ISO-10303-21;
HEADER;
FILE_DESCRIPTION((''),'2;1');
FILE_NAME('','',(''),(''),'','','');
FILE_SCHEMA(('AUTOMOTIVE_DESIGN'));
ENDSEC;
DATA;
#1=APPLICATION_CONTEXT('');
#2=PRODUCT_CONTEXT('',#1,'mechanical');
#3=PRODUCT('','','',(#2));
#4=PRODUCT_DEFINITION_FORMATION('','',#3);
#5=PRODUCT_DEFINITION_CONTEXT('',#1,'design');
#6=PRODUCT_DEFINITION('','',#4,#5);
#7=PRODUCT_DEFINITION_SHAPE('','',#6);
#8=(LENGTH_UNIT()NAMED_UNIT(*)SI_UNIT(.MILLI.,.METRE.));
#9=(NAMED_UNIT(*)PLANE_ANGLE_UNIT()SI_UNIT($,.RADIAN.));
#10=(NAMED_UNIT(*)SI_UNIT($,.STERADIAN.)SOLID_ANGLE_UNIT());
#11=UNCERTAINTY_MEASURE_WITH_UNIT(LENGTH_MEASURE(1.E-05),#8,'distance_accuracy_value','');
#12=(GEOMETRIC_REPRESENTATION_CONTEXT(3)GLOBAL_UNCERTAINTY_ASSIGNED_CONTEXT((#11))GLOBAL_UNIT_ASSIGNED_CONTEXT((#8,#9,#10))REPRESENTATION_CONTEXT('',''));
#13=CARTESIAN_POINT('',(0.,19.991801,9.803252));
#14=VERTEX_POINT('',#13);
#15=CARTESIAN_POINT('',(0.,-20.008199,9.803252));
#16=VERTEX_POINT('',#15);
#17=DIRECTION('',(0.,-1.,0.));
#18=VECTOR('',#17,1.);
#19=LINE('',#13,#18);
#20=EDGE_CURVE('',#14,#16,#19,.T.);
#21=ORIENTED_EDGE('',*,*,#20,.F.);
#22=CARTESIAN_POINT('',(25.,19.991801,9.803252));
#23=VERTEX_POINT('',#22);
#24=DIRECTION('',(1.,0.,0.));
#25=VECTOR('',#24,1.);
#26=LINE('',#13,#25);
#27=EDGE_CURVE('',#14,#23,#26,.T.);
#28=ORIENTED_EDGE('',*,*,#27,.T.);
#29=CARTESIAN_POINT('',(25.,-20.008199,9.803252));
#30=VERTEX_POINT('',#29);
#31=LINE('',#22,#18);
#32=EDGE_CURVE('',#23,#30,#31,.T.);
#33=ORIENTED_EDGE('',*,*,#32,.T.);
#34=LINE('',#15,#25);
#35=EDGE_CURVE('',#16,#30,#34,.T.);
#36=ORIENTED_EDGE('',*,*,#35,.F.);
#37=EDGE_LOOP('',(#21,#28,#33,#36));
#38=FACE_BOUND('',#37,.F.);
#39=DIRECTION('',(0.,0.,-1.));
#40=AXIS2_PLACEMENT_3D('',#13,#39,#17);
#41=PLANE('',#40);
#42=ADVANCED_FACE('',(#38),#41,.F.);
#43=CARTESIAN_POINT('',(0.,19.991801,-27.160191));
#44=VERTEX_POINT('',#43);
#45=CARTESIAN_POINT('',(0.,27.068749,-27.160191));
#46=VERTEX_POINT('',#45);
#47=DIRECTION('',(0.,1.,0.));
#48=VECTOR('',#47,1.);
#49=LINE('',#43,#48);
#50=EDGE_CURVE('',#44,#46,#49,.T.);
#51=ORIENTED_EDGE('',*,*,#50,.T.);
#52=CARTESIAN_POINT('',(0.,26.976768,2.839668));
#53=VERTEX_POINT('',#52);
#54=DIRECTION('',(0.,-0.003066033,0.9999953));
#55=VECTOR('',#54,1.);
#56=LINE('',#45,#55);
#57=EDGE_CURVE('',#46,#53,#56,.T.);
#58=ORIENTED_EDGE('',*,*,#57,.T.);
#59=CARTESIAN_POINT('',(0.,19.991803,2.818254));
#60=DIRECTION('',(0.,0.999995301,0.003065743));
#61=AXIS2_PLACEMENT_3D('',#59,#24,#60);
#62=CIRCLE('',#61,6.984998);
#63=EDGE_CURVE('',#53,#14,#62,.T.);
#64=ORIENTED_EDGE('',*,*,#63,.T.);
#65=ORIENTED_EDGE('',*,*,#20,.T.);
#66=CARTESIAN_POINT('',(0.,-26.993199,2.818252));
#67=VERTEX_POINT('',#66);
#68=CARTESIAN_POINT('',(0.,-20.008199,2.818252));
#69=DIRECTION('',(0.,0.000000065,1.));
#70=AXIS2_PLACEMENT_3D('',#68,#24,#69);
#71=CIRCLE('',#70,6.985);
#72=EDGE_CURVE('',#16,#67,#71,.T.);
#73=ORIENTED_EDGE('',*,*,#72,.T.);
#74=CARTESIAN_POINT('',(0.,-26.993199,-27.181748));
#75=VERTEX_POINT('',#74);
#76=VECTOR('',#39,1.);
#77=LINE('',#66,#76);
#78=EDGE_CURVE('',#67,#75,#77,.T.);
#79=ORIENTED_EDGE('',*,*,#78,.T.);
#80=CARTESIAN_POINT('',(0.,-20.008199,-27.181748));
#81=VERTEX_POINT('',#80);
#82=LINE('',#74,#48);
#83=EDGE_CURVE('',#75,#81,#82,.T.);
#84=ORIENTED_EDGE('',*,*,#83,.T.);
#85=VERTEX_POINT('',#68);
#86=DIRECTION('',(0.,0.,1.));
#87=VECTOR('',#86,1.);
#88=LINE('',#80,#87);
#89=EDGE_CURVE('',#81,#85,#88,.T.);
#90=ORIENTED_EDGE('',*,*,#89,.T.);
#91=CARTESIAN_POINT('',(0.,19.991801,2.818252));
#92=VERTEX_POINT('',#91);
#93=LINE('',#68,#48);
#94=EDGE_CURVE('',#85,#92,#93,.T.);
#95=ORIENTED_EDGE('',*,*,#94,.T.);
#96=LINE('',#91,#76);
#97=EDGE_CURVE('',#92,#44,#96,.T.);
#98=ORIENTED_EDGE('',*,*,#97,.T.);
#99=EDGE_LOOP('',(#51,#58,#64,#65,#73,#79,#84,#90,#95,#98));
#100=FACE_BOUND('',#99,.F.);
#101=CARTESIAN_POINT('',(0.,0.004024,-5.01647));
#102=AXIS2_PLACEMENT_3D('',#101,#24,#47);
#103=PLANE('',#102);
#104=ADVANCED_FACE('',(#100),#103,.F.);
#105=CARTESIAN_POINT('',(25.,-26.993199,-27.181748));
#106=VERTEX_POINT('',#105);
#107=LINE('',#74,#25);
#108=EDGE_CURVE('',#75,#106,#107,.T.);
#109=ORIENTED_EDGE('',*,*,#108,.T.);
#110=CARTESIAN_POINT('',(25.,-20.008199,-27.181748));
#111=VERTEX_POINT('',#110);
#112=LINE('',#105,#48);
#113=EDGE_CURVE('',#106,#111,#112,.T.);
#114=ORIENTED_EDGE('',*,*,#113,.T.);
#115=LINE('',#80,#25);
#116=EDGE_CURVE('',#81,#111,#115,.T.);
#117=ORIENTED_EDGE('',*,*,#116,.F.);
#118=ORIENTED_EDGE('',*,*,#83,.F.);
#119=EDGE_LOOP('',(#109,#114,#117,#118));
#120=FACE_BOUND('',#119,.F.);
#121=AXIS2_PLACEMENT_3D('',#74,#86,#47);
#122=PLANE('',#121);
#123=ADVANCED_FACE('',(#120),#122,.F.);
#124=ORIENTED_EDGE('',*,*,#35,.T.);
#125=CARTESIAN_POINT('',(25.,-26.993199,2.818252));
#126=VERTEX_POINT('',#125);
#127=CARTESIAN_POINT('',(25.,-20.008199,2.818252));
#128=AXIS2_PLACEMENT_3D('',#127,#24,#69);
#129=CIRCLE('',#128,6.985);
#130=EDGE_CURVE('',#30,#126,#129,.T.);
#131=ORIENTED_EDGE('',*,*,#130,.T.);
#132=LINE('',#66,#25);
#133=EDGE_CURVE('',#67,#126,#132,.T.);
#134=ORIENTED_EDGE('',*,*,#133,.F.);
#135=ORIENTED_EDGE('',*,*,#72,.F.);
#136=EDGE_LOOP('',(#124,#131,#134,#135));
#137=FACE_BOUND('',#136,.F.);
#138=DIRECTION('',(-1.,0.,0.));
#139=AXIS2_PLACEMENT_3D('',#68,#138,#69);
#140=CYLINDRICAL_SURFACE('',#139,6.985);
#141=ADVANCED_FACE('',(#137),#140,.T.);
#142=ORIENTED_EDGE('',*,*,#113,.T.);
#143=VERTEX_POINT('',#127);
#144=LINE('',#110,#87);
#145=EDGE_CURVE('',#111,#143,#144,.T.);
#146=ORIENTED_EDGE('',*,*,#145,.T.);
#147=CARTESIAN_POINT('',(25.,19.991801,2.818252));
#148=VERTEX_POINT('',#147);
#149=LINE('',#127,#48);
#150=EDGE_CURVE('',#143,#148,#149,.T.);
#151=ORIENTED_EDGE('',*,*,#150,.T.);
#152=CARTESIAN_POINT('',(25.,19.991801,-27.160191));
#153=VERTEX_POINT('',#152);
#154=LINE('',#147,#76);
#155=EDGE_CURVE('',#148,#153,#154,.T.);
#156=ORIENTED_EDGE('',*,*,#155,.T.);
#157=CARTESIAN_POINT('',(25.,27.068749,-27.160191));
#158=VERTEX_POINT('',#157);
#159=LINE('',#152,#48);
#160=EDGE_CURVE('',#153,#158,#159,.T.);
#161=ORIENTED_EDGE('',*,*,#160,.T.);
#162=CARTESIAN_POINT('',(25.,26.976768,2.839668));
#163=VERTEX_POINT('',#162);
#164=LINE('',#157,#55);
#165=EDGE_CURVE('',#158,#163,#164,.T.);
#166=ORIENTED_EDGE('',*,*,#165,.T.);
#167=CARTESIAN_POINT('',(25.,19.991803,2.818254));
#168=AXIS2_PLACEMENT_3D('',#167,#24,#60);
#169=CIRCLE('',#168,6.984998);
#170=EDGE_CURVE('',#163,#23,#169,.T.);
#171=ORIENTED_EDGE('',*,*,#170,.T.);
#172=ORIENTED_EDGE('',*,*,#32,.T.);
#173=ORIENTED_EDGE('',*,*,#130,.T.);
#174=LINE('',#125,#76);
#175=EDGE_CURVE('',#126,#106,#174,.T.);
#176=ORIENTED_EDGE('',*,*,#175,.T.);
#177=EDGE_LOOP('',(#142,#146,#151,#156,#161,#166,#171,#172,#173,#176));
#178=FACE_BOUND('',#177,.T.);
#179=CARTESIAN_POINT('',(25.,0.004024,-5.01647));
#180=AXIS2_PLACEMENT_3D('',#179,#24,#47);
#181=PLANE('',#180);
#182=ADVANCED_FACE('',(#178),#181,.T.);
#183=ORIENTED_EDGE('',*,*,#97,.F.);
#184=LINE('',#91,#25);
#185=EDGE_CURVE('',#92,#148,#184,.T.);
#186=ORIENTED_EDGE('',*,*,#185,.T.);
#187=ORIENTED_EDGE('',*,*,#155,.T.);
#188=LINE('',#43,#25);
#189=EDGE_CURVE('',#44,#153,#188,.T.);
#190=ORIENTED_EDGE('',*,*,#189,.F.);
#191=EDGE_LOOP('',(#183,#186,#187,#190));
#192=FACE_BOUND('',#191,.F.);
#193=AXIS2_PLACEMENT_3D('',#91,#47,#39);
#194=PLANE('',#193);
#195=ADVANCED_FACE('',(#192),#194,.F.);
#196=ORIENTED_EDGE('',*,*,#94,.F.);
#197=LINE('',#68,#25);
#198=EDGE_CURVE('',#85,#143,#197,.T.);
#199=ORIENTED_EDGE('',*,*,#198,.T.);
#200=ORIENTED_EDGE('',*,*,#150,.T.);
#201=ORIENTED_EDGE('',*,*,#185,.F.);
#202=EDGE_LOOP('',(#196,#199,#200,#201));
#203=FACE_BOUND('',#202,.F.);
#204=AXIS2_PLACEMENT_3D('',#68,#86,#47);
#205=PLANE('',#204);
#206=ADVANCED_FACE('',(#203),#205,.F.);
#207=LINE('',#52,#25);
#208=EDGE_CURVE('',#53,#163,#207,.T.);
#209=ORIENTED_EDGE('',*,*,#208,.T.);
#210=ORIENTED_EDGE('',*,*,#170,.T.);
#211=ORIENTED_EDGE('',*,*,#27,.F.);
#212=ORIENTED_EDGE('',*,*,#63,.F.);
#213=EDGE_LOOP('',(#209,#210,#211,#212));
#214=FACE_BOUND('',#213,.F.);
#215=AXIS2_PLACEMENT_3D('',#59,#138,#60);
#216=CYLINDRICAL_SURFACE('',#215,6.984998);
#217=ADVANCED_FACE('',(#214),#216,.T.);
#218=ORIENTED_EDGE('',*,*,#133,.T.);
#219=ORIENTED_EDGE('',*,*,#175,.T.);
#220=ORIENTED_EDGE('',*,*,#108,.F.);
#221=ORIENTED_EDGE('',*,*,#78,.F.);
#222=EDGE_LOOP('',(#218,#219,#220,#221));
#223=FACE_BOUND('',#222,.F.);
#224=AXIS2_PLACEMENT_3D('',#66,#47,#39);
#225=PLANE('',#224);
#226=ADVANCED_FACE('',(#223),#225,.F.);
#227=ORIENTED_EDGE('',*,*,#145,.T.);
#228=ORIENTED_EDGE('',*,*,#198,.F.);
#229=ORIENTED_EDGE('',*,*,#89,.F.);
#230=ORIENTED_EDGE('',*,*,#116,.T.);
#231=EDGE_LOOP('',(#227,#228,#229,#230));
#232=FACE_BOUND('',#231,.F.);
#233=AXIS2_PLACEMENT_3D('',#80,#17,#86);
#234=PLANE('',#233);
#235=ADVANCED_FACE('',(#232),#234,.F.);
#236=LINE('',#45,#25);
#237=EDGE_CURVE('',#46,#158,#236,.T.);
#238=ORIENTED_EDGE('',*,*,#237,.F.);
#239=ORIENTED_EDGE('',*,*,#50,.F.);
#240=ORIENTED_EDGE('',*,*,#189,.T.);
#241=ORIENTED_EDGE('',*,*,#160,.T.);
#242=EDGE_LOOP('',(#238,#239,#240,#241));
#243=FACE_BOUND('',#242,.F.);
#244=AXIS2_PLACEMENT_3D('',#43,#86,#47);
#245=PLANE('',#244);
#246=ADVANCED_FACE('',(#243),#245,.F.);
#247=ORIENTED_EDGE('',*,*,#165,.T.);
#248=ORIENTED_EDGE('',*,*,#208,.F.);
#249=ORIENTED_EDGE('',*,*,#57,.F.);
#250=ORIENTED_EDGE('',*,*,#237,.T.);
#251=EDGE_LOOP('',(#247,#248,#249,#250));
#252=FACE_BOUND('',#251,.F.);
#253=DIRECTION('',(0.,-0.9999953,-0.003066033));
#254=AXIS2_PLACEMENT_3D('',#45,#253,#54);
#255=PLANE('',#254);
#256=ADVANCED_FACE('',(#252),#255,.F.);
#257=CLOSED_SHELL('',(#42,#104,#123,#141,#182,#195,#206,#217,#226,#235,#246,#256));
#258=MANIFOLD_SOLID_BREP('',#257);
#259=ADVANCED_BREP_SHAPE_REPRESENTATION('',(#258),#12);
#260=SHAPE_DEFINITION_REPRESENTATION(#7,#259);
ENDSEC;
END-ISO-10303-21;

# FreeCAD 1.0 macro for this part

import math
import FreeCAD as App
import Part
import Sketcher
Q = App.Units.Quantity

doc = App.newDocument("Part")
body = doc.addObject("PartDesign::Body", "Body")

# Sketch on YZ plane
sketch1 = body.newObject("Sketcher::SketchObject", "Sketch")
sketch1.AttachmentSupport = (doc.getObject("YZ_Plane"), [""])
sketch1.MapMode = "FlatFace"
sketch1.addGeometry(Part.ArcOfCircle(Part.Circle(App.Vector(-20, 3, 0), App.Vector(0, 0, 1), 7), math.radians(90), math.radians(180)), False)
sketch1.addGeometry(Part.LineSegment(App.Vector(-27, 3, 0), App.Vector(-27, -27, 0)), False)
sketch1.addGeometry(Part.LineSegment(App.Vector(-27, -27, 0), App.Vector(-20, -27, 0)), False)
sketch1.addGeometry(Part.LineSegment(App.Vector(-20, -27, 0), App.Vector(-20, 3, 0)), False)
sketch1.addGeometry(Part.LineSegment(App.Vector(-20, 3, 0), App.Vector(20, 3, 0)), False)
sketch1.addGeometry(Part.LineSegment(App.Vector(20, 3, 0), App.Vector(20, -27, 0)), False)
sketch1.addGeometry(Part.LineSegment(App.Vector(20, -27, 0), App.Vector(27, -27, 0)), False)
sketch1.addGeometry(Part.LineSegment(App.Vector(27, -27, 0), App.Vector(27, 3, 0)), False)
sketch1.addGeometry(Part.ArcOfCircle(Part.Circle(App.Vector(20, 3, 0), App.Vector(0, 0, 1), 7), math.radians(0), math.radians(90)), False)
sketch1.addGeometry(Part.LineSegment(App.Vector(20, 10, 0), App.Vector(-20, 10, 0)), False)
sketch1.addConstraint(Sketcher.Constraint("Tangent", 0, 2, 1, 1))
sketch1.addConstraint(Sketcher.Constraint("Coincident", 1, 2, 2, 1))
sketch1.addConstraint(Sketcher.Constraint("Coincident", 2, 2, 3, 1))
sketch1.addConstraint(Sketcher.Constraint("Coincident", 3, 2, 4, 1))
sketch1.addConstraint(Sketcher.Constraint("Coincident", 4, 2, 5, 1))
sketch1.addConstraint(Sketcher.Constraint("Coincident", 5, 2, 6, 1))
sketch1.addConstraint(Sketcher.Constraint("Coincident", 6, 2, 7, 1))
sketch1.addConstraint(Sketcher.Constraint("Tangent", 7, 2, 8, 1))
sketch1.addConstraint(Sketcher.Constraint("Tangent", 8, 2, 9, 1))
sketch1.addConstraint(Sketcher.Constraint("Tangent", 9, 2, 0, 1))
sketch1.addConstraint(Sketcher.Constraint("Vertical", 1))
sketch1.addConstraint(Sketcher.Constraint("Horizontal", 2))
sketch1.addConstraint(Sketcher.Constraint("Vertical", 3))
sketch1.addConstraint(Sketcher.Constraint("Horizontal", 4))
sketch1.addConstraint(Sketcher.Constraint("Vertical", 5))
sketch1.addConstraint(Sketcher.Constraint("Horizontal", 6))
sketch1.addConstraint(Sketcher.Constraint("Horizontal", 9))
sketch1.addConstraint(Sketcher.Constraint("Coincident", 3, 2, 0, 3))
sketch1.addConstraint(Sketcher.Constraint("Coincident", 4, 2, 8, 3))
sketch1.addConstraint(Sketcher.Constraint("DistanceX", 4, 1, 4, 2, Q("40 mm")))
sketch1.addConstraint(Sketcher.Constraint("DistanceY", 1, 2, 1, 1, Q("30 mm")))
sketch1.addConstraint(Sketcher.Constraint("Distance", 7, Q("30 mm")))
sketch1.addConstraint(Sketcher.Constraint("Radius", 0, Q("6.985 mm")))
sketch1.addConstraint(Sketcher.Constraint("DistanceX", 6, 1, 6, 2, Q("7.076948 mm")))
sketch1.addConstraint(Sketcher.Constraint("DistanceX", 0, 3, -1, 1, Q("20.008199 mm")))
sketch1.addConstraint(Sketcher.Constraint("DistanceY", 5, 2, -1, 1, Q("27.160191 mm")))
pad1 = body.newObject("PartDesign::Pad", "Pad")
pad1.Profile = sketch1
pad1.Length = 25

doc.recompute()
